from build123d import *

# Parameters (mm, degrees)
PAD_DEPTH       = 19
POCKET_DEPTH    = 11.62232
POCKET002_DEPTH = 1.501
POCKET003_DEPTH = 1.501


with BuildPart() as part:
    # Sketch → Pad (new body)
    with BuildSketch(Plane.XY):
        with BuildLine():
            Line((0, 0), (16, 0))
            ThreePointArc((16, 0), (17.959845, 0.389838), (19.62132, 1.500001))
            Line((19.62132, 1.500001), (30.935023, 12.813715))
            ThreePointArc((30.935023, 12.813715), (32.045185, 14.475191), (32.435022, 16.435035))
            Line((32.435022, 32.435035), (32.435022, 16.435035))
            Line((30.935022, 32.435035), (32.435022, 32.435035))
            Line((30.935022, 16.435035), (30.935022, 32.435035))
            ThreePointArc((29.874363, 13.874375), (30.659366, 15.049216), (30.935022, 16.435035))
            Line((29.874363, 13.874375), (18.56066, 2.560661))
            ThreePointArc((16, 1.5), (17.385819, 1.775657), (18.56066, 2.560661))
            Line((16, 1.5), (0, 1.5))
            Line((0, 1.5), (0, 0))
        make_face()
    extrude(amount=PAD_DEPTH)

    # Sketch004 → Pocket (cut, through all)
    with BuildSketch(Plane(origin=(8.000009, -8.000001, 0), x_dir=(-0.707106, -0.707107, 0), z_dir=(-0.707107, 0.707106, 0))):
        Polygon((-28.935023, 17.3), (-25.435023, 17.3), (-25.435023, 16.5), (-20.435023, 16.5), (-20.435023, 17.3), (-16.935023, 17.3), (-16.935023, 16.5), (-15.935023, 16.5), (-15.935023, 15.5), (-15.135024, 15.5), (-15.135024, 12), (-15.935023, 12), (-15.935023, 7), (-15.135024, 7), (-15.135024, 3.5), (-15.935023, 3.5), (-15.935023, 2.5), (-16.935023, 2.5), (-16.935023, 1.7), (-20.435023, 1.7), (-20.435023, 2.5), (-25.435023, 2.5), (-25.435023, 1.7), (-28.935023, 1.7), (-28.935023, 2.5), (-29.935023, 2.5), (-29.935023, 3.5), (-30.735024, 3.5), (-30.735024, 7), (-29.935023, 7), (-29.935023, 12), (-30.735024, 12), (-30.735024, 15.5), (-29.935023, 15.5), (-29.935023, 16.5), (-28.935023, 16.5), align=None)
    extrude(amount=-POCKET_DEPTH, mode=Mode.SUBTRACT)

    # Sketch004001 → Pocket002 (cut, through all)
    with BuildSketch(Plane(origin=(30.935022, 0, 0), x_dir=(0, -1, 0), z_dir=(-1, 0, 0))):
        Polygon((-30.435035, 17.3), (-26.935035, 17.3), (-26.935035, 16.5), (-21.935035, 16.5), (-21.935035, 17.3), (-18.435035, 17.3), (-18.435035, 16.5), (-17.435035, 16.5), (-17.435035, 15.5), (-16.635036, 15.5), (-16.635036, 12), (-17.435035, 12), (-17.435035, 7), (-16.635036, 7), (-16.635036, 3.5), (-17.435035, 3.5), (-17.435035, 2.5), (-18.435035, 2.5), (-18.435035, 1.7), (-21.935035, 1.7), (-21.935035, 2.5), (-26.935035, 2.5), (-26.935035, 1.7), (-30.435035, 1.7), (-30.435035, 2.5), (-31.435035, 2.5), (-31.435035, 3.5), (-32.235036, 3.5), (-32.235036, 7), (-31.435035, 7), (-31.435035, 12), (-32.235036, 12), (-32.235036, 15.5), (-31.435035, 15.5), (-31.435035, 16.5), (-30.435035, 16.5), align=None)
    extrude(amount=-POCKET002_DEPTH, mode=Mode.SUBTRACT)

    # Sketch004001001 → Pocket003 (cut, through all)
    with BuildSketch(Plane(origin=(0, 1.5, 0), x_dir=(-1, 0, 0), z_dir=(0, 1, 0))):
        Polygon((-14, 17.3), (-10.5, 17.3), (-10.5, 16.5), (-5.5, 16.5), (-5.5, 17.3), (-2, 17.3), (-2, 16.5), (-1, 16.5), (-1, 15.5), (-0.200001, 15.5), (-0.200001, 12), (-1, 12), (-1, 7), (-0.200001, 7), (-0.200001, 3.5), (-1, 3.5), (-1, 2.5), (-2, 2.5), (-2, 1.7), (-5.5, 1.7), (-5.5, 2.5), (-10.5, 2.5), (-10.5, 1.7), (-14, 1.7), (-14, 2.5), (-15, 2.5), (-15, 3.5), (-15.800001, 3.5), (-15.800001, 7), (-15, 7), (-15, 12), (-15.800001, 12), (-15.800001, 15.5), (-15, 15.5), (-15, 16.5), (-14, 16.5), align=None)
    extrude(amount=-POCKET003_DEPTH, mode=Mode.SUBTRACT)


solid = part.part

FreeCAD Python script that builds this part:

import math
import FreeCAD as App
import Part
import Sketcher

V = App.Vector


def add_polygon(sketch, points):
    """Adds a closed chain of lines whose ends are joined by coincident constraints."""
    first, n = sketch.GeometryCount, len(points)
    for a, b in zip(points, points[1:] + points[:1]):
        sketch.addGeometry(Part.LineSegment(App.Vector(*a, 0), App.Vector(*b, 0)), False)
    for i in range(n):
        sketch.addConstraint(Sketcher.Constraint("Coincident", first + i, 2, first + (i + 1) % n, 1))

doc = App.newDocument("Part")
params = doc.addObject("Spreadsheet::Sheet", "Params")
for row, (alias, value) in enumerate([
    ("sketch1_width", "16 mm"),
    ("sketch1_length", "16 mm"),
    ("sketch1_width2", "1.5 mm"),
    ("pad1_length", "19 mm"),
    ("sketch2_width", "1 mm"),
    ("sketch2_width2", "5 mm"),
    ("sketch2_width3", "3.5 mm"),
    ("sketch2_width4", "0.800001 mm"),
    ("sketch3_width", "1 mm"),
    ("sketch3_width2", "5 mm"),
    ("sketch3_width3", "3.5 mm"),
    ("sketch3_width4", "0.800001 mm"),
    ("sketch4_width", "1 mm"),
    ("sketch4_width2", "5 mm"),
    ("sketch4_width3", "3.5 mm"),
    ("sketch4_width4", "0.800001 mm"),
], start=1):
    params.set(f"A{row}", alias)
    params.set(f"B{row}", "=" + value)
    params.setAlias(f"B{row}", alias)

body = doc.addObject("PartDesign::Body", "Body")

# Sketch on XY plane
sketch1 = doc.addObject("Sketcher::SketchObject", "Sketch")
body.addObject(sketch1)
sketch1.AttachmentSupport = (doc.XY_Plane, [""])
sketch1.MapMode = "FlatFace"
sketch1.addGeometry([
    Part.LineSegment(V(0, 0, 0), V(16, 0, 0)),  # 0
    Part.ArcOfCircle(Part.Circle(V(16, 5.1, 0), V(0, 0, 1), 5.1), math.radians(-90), math.radians(-45)),  # 1
    Part.LineSegment(V(19.6, 1.5, 0), V(30.9, 12.8, 0)),  # 2
    Part.ArcOfCircle(Part.Circle(V(27.3, 16.4, 0), V(0, 0, 1), 5.1), math.radians(-45), math.radians(0)),  # 3
    Part.LineSegment(V(32.4, 16.4, 0), V(32.4, 32.4, 0)),  # 4
    Part.LineSegment(V(32.4, 32.4, 0), V(30.9, 32.4, 0)),  # 5
    Part.LineSegment(V(30.9, 32.4, 0), V(30.9, 16.4, 0)),  # 6
    Part.ArcOfCircle(Part.Circle(V(27.3, 16.4, 0), V(0, 0, 1), 3.6), math.radians(-45), math.radians(0)),  # 7
    Part.LineSegment(V(29.9, 13.9, 0), V(18.6, 2.6, 0)),  # 8
    Part.ArcOfCircle(Part.Circle(V(16, 5.1, 0), V(0, 0, 1), 3.6), math.radians(-90), math.radians(-45)),  # 9
    Part.LineSegment(V(16, 1.5, 0), V(0, 1.5, 0)),  # 10
    Part.LineSegment(V(0, 1.5, 0), V(0, 0, 0)),  # 11
], False)
sketch1.addConstraint([
    Sketcher.Constraint("Tangent", 0, 2, 1, 1),
    Sketcher.Constraint("Tangent", 1, 2, 2, 1),
    Sketcher.Constraint("Tangent", 2, 2, 3, 1),
    Sketcher.Constraint("Tangent", 3, 2, 4, 1),
    Sketcher.Constraint("Coincident", 4, 2, 5, 1),
    Sketcher.Constraint("Coincident", 5, 2, 6, 1),
    Sketcher.Constraint("Tangent", 6, 2, 7, 2),
    Sketcher.Constraint("Tangent", 7, 1, 8, 1),
    Sketcher.Constraint("Tangent", 8, 2, 9, 2),
    Sketcher.Constraint("Tangent", 9, 1, 10, 1),
    Sketcher.Constraint("Coincident", 10, 2, 11, 1),
    Sketcher.Constraint("Coincident", 11, 2, 0, 1),
    Sketcher.Constraint("Horizontal", 0),
    Sketcher.Constraint("Vertical", 4),
    Sketcher.Constraint("Horizontal", 5),
    Sketcher.Constraint("Vertical", 6),
    Sketcher.Constraint("Horizontal", 10),
    Sketcher.Constraint("Vertical", 11),
    Sketcher.Constraint("Coincident", 11, 2, -1, 1),
    Sketcher.Constraint("Coincident", 7, 3, 3, 3),
    Sketcher.Constraint("Coincident", 9, 3, 1, 3),
    Sketcher.Constraint("Equal", 7, 9),
    Sketcher.Constraint("Parallel", 2, 8),
    Sketcher.Constraint("Horizontal", 1, 2, 9, 1),
    Sketcher.Constraint("Vertical", 2, 2, 5, 2),
    Sketcher.Constraint("Equal", 10, 4),
    Sketcher.Constraint("DistanceX", 0, 1, 0, 2, 16.0),
    Sketcher.Constraint("Distance", 2, 16.0),
    Sketcher.Constraint("DistanceX", 5, 2, 5, 1, 1.5),
])
sketch1.setExpression("Constraints[26]", "Params.sketch1_width")
sketch1.setExpression("Constraints[27]", "Params.sketch1_length")
sketch1.setExpression("Constraints[28]", "Params.sketch1_width2")
pad1 = doc.addObject("PartDesign::Pad", "Pad")
body.addObject(pad1)
pad1.Profile = sketch1
pad1.setExpression("Length", "Params.pad1_length")

# Sketch on an angled plane
sketch2 = doc.addObject("Sketcher::SketchObject", "Sketch001")
body.addObject(sketch2)
sketch2.Placement = App.Placement(V(8.000009, -8.000001, 0), App.Rotation(V(-0.707106281, -0.707107281, 0), V(0, 0, 0.999999999), V(-0.707107281, 0.707106281, 0), "ZXY"))
add_polygon(sketch2, [(-25.4, 17.3), (-28.9, 17.3), (-28.9, 16.5), (-29.9, 16.5), (-29.9, 15.5), (-30.7, 15.5), (-30.7, 12), (-29.9, 12), (-29.9, 7), (-30.7, 7), (-30.7, 3.5), (-29.9, 3.5), (-29.9, 2.5), (-28.9, 2.5), (-28.9, 1.7), (-25.4, 1.7), (-25.4, 2.5), (-20.4, 2.5), (-20.4, 1.7), (-16.9, 1.7), (-16.9, 2.5), (-15.9, 2.5), (-15.9, 3.5), (-15.1, 3.5), (-15.1, 7), (-15.9, 7), (-15.9, 12), (-15.1, 12), (-15.1, 15.5), (-15.9, 15.5), (-15.9, 16.5), (-16.9, 16.5), (-16.9, 17.3), (-20.4, 17.3), (-20.4, 16.5), (-25.4, 16.5)])  # lines 0-35
sketch2.addConstraint([
    Sketcher.Constraint("Horizontal", 0),
    Sketcher.Constraint("Vertical", 1),
    Sketcher.Constraint("Horizontal", 2),
    Sketcher.Constraint("Vertical", 3),
    Sketcher.Constraint("Horizontal", 4),
    Sketcher.Constraint("Vertical", 5),
    Sketcher.Constraint("Horizontal", 6),
    Sketcher.Constraint("Vertical", 7),
    Sketcher.Constraint("Horizontal", 8),
    Sketcher.Constraint("Vertical", 9),
    Sketcher.Constraint("Horizontal", 10),
    Sketcher.Constraint("Vertical", 11),
    Sketcher.Constraint("Horizontal", 12),
    Sketcher.Constraint("Vertical", 13),
    Sketcher.Constraint("Horizontal", 14),
    Sketcher.Constraint("Vertical", 15),
    Sketcher.Constraint("Horizontal", 16),
    Sketcher.Constraint("Vertical", 17),
    Sketcher.Constraint("Horizontal", 18),
    Sketcher.Constraint("Vertical", 19),
    Sketcher.Constraint("Horizontal", 20),
    Sketcher.Constraint("Vertical", 21),
    Sketcher.Constraint("Horizontal", 22),
    Sketcher.Constraint("Vertical", 23),
    Sketcher.Constraint("Horizontal", 24),
    Sketcher.Constraint("Vertical", 25),
    Sketcher.Constraint("Horizontal", 26),
    Sketcher.Constraint("Vertical", 27),
    Sketcher.Constraint("Horizontal", 28),
    Sketcher.Constraint("Vertical", 29),
    Sketcher.Constraint("Horizontal", 30),
    Sketcher.Constraint("Vertical", 31),
    Sketcher.Constraint("Horizontal", 32),
    Sketcher.Constraint("Vertical", 33),
    Sketcher.Constraint("Horizontal", 34),
    Sketcher.Constraint("Vertical", 35),
    Sketcher.Constraint("Horizontal", 12, 2, 15, 2),
    Sketcher.Constraint("Horizontal", 14, 2, 17, 2),
    Sketcher.Constraint("Horizontal", 16, 2, 19, 2),
    Sketcher.Constraint("Horizontal", 10, 2, 21, 2),
    Sketcher.Constraint("Horizontal", 8, 2, 23, 2),
    Sketcher.Constraint("Horizontal", 6, 2, 25, 2),
    Sketcher.Constraint("Horizontal", 4, 2, 27, 2),
    Sketcher.Constraint("Horizontal", 2, 2, 29, 2),
    Sketcher.Constraint("Horizontal", 0, 2, 31, 2),
    Sketcher.Constraint("Horizontal", 30, 2, 33, 2),
    Sketcher.Constraint("Vertical", 3, 2, 6, 2),
    Sketcher.Constraint("Vertical", 5, 2, 8, 2),
    Sketcher.Constraint("Vertical", 7, 2, 10, 2),
    Sketcher.Constraint("Vertical", 1, 2, 12, 2),
    Sketcher.Constraint("Vertical", 21, 2, 24, 2),
    Sketcher.Constraint("Vertical", 23, 2, 26, 2),
    Sketcher.Constraint("Vertical", 25, 2, 28, 2),
    Sketcher.Constraint("Vertical", 19, 2, 30, 2),
    Sketcher.Constraint("Vertical", 17, 2, 32, 2),
    Sketcher.Constraint("Vertical", 15, 2, 34, 2),
    Sketcher.Constraint("Equal", 14, 18),
    Sketcher.Constraint("Equal", 12, 20),
    Sketcher.Constraint("Equal", 28, 1),
    Sketcher.Constraint("Equal", 30, 3),
    Sketcher.Constraint("Equal", 32, 5),
    Sketcher.Constraint("Equal", 34, 7),
    Sketcher.Constraint("Equal", 5, 9),
    Sketcher.Constraint("Equal", 3, 11),
    Sketcher.Constraint("Equal", 1, 13),
    Sketcher.Constraint("Equal", 10, 15),
    Sketcher.Constraint("DistanceX", 2, 2, 2, 1, 1.0),
    Sketcher.Constraint("DistanceX", 16, 1, 16, 2, 5.0),
    Sketcher.Constraint("DistanceX", 0, 2, 0, 1, 3.5),
    Sketcher.Constraint("DistanceX", 4, 2, 4, 1, 0.800001),
    Sketcher.Constraint("DistanceY", -1, 1, 5, 2, 12.0),
    Sketcher.Constraint("DistanceX", 0, 2, -1, 1, 28.935023),
])
sketch2.setExpression("Constraints[102]", "Params.sketch2_width")
sketch2.setExpression("Constraints[103]", "Params.sketch2_width2")
sketch2.setExpression("Constraints[104]", "Params.sketch2_width3")
sketch2.setExpression("Constraints[105]", "Params.sketch2_width4")
pocket1 = doc.addObject("PartDesign::Pocket", "Pocket")
body.addObject(pocket1)
pocket1.Profile = sketch2
pocket1.Type = "ThroughAll"

# Sketch on YZ plane
sketch3 = doc.addObject("Sketcher::SketchObject", "Sketch002")
body.addObject(sketch3)
sketch3.AttachmentSupport = (doc.YZ_Plane, [""])
sketch3.MapMode = "FlatFace"
sketch3.AttachmentOffset = App.Placement(V(0, 0, 30.935022), App.Rotation())
add_polygon(sketch3, [(26.9, 17.3), (30.4, 17.3), (30.4, 16.5), (31.4, 16.5), (31.4, 15.5), (32.2, 15.5), (32.2, 12), (31.4, 12), (31.4, 7), (32.2, 7), (32.2, 3.5), (31.4, 3.5), (31.4, 2.5), (30.4, 2.5), (30.4, 1.7), (26.9, 1.7), (26.9, 2.5), (21.9, 2.5), (21.9, 1.7), (18.4, 1.7), (18.4, 2.5), (17.4, 2.5), (17.4, 3.5), (16.6, 3.5), (16.6, 7), (17.4, 7), (17.4, 12), (16.6, 12), (16.6, 15.5), (17.4, 15.5), (17.4, 16.5), (18.4, 16.5), (18.4, 17.3), (21.9, 17.3), (21.9, 16.5), (26.9, 16.5)])  # lines 0-35
sketch3.addConstraint([
    Sketcher.Constraint("Horizontal", 0),
    Sketcher.Constraint("Vertical", 1),
    Sketcher.Constraint("Horizontal", 2),
    Sketcher.Constraint("Vertical", 3),
    Sketcher.Constraint("Horizontal", 4),
    Sketcher.Constraint("Vertical", 5),
    Sketcher.Constraint("Horizontal", 6),
    Sketcher.Constraint("Vertical", 7),
    Sketcher.Constraint("Horizontal", 8),
    Sketcher.Constraint("Vertical", 9),
    Sketcher.Constraint("Horizontal", 10),
    Sketcher.Constraint("Vertical", 11),
    Sketcher.Constraint("Horizontal", 12),
    Sketcher.Constraint("Vertical", 13),
    Sketcher.Constraint("Horizontal", 14),
    Sketcher.Constraint("Vertical", 15),
    Sketcher.Constraint("Horizontal", 16),
    Sketcher.Constraint("Vertical", 17),
    Sketcher.Constraint("Horizontal", 18),
    Sketcher.Constraint("Vertical", 19),
    Sketcher.Constraint("Horizontal", 20),
    Sketcher.Constraint("Vertical", 21),
    Sketcher.Constraint("Horizontal", 22),
    Sketcher.Constraint("Vertical", 23),
    Sketcher.Constraint("Horizontal", 24),
    Sketcher.Constraint("Vertical", 25),
    Sketcher.Constraint("Horizontal", 26),
    Sketcher.Constraint("Vertical", 27),
    Sketcher.Constraint("Horizontal", 28),
    Sketcher.Constraint("Vertical", 29),
    Sketcher.Constraint("Horizontal", 30),
    Sketcher.Constraint("Vertical", 31),
    Sketcher.Constraint("Horizontal", 32),
    Sketcher.Constraint("Vertical", 33),
    Sketcher.Constraint("Horizontal", 34),
    Sketcher.Constraint("Vertical", 35),
    Sketcher.Constraint("Horizontal", 12, 2, 15, 2),
    Sketcher.Constraint("Horizontal", 14, 2, 17, 2),
    Sketcher.Constraint("Horizontal", 16, 2, 19, 2),
    Sketcher.Constraint("Horizontal", 10, 2, 21, 2),
    Sketcher.Constraint("Horizontal", 8, 2, 23, 2),
    Sketcher.Constraint("Horizontal", 6, 2, 25, 2),
    Sketcher.Constraint("Horizontal", 4, 2, 27, 2),
    Sketcher.Constraint("Horizontal", 2, 2, 29, 2),
    Sketcher.Constraint("Horizontal", 0, 2, 31, 2),
    Sketcher.Constraint("Horizontal", 30, 2, 33, 2),
    Sketcher.Constraint("Vertical", 3, 2, 6, 2),
    Sketcher.Constraint("Vertical", 5, 2, 8, 2),
    Sketcher.Constraint("Vertical", 7, 2, 10, 2),
    Sketcher.Constraint("Vertical", 1, 2, 12, 2),
    Sketcher.Constraint("Vertical", 21, 2, 24, 2),
    Sketcher.Constraint("Vertical", 23, 2, 26, 2),
    Sketcher.Constraint("Vertical", 25, 2, 28, 2),
    Sketcher.Constraint("Vertical", 19, 2, 30, 2),
    Sketcher.Constraint("Vertical", 17, 2, 32, 2),
    Sketcher.Constraint("Vertical", 15, 2, 34, 2),
    Sketcher.Constraint("Equal", 14, 18),
    Sketcher.Constraint("Equal", 12, 20),
    Sketcher.Constraint("Equal", 28, 1),
    Sketcher.Constraint("Equal", 30, 3),
    Sketcher.Constraint("Equal", 32, 5),
    Sketcher.Constraint("Equal", 34, 7),
    Sketcher.Constraint("Equal", 5, 9),
    Sketcher.Constraint("Equal", 3, 11),
    Sketcher.Constraint("Equal", 1, 13),
    Sketcher.Constraint("Equal", 10, 15),
    Sketcher.Constraint("DistanceX", 2, 1, 2, 2, 1.0),
    Sketcher.Constraint("DistanceX", 16, 2, 16, 1, 5.0),
    Sketcher.Constraint("DistanceX", 0, 1, 0, 2, 3.5),
    Sketcher.Constraint("DistanceX", 4, 1, 4, 2, 0.800001),
    Sketcher.Constraint("DistanceY", -1, 1, 5, 2, 12.0),
    Sketcher.Constraint("DistanceX", -1, 1, 0, 2, 30.435035),
])
sketch3.setExpression("Constraints[102]", "Params.sketch3_width")
sketch3.setExpression("Constraints[103]", "Params.sketch3_width2")
sketch3.setExpression("Constraints[104]", "Params.sketch3_width3")
sketch3.setExpression("Constraints[105]", "Params.sketch3_width4")
pocket2 = doc.addObject("PartDesign::Pocket", "Pocket001")
body.addObject(pocket2)
pocket2.Profile = sketch3
pocket2.Type = "ThroughAll"
pocket2.Reversed = True

# Sketch on XZ plane
sketch4 = doc.addObject("Sketcher::SketchObject", "Sketch003")
body.addObject(sketch4)
sketch4.AttachmentSupport = (doc.XZ_Plane, [""])
sketch4.MapMode = "FlatFace"
sketch4.AttachmentOffset = App.Placement(V(0, 0, -1.5), App.Rotation())
add_polygon(sketch4, [(10.5, 17.3), (14, 17.3), (14, 16.5), (15, 16.5), (15, 15.5), (15.8, 15.5), (15.8, 12), (15, 12), (15, 7), (15.8, 7), (15.8, 3.5), (15, 3.5), (15, 2.5), (14, 2.5), (14, 1.7), (10.5, 1.7), (10.5, 2.5), (5.5, 2.5), (5.5, 1.7), (2, 1.7), (2, 2.5), (1, 2.5), (1, 3.5), (0.2, 3.5), (0.2, 7), (1, 7), (1, 12), (0.2, 12), (0.2, 15.5), (1, 15.5), (1, 16.5), (2, 16.5), (2, 17.3), (5.5, 17.3), (5.5, 16.5), (10.5, 16.5)])  # lines 0-35
sketch4.addConstraint([
    Sketcher.Constraint("Horizontal", 0),
    Sketcher.Constraint("Vertical", 1),
    Sketcher.Constraint("Horizontal", 2),
    Sketcher.Constraint("Vertical", 3),
    Sketcher.Constraint("Horizontal", 4),
    Sketcher.Constraint("Vertical", 5),
    Sketcher.Constraint("Horizontal", 6),
    Sketcher.Constraint("Vertical", 7),
    Sketcher.Constraint("Horizontal", 8),
    Sketcher.Constraint("Vertical", 9),
    Sketcher.Constraint("Horizontal", 10),
    Sketcher.Constraint("Vertical", 11),
    Sketcher.Constraint("Horizontal", 12),
    Sketcher.Constraint("Vertical", 13),
    Sketcher.Constraint("Horizontal", 14),
    Sketcher.Constraint("Vertical", 15),
    Sketcher.Constraint("Horizontal", 16),
    Sketcher.Constraint("Vertical", 17),
    Sketcher.Constraint("Horizontal", 18),
    Sketcher.Constraint("Vertical", 19),
    Sketcher.Constraint("Horizontal", 20),
    Sketcher.Constraint("Vertical", 21),
    Sketcher.Constraint("Horizontal", 22),
    Sketcher.Constraint("Vertical", 23),
    Sketcher.Constraint("Horizontal", 24),
    Sketcher.Constraint("Vertical", 25),
    Sketcher.Constraint("Horizontal", 26),
    Sketcher.Constraint("Vertical", 27),
    Sketcher.Constraint("Horizontal", 28),
    Sketcher.Constraint("Vertical", 29),
    Sketcher.Constraint("Horizontal", 30),
    Sketcher.Constraint("Vertical", 31),
    Sketcher.Constraint("Horizontal", 32),
    Sketcher.Constraint("Vertical", 33),
    Sketcher.Constraint("Horizontal", 34),
    Sketcher.Constraint("Vertical", 35),
    Sketcher.Constraint("Horizontal", 12, 2, 15, 2),
    Sketcher.Constraint("Horizontal", 14, 2, 17, 2),
    Sketcher.Constraint("Horizontal", 16, 2, 19, 2),
    Sketcher.Constraint("Horizontal", 10, 2, 21, 2),
    Sketcher.Constraint("Horizontal", 8, 2, 23, 2),
    Sketcher.Constraint("Horizontal", 6, 2, 25, 2),
    Sketcher.Constraint("Horizontal", 4, 2, 27, 2),
    Sketcher.Constraint("Horizontal", 2, 2, 29, 2),
    Sketcher.Constraint("Horizontal", 0, 2, 31, 2),
    Sketcher.Constraint("Horizontal", 30, 2, 33, 2),
    Sketcher.Constraint("Vertical", 3, 2, 6, 2),
    Sketcher.Constraint("Vertical", 5, 2, 8, 2),
    Sketcher.Constraint("Vertical", 7, 2, 10, 2),
    Sketcher.Constraint("Vertical", 1, 2, 12, 2),
    Sketcher.Constraint("Vertical", 21, 2, 24, 2),
    Sketcher.Constraint("Vertical", 23, 2, 26, 2),
    Sketcher.Constraint("Vertical", 25, 2, 28, 2),
    Sketcher.Constraint("Vertical", 19, 2, 30, 2),
    Sketcher.Constraint("Vertical", 17, 2, 32, 2),
    Sketcher.Constraint("Vertical", 15, 2, 34, 2),
    Sketcher.Constraint("Equal", 14, 18),
    Sketcher.Constraint("Equal", 12, 20),
    Sketcher.Constraint("Equal", 10, 22),
    Sketcher.Constraint("Equal", 28, 1),
    Sketcher.Constraint("Equal", 30, 3),
    Sketcher.Constraint("Equal", 32, 5),
    Sketcher.Constraint("Equal", 34, 7),
    Sketcher.Constraint("Equal", 5, 9),
    Sketcher.Constraint("Equal", 3, 11),
    Sketcher.Constraint("Equal", 1, 13),
    Sketcher.Constraint("DistanceX", 2, 1, 2, 2, 1.0),
    Sketcher.Constraint("DistanceX", 16, 2, 16, 1, 5.0),
    Sketcher.Constraint("DistanceX", 0, 1, 0, 2, 3.5),
    Sketcher.Constraint("DistanceX", 4, 1, 4, 2, 0.800001),
    Sketcher.Constraint("DistanceX", -1, 1, 0, 2, 14.0),
    Sketcher.Constraint("DistanceY", -1, 1, 5, 2, 12.0),
])
sketch4.setExpression("Constraints[102]", "Params.sketch4_width")
sketch4.setExpression("Constraints[103]", "Params.sketch4_width2")
sketch4.setExpression("Constraints[104]", "Params.sketch4_width3")
sketch4.setExpression("Constraints[105]", "Params.sketch4_width4")
pocket3 = doc.addObject("PartDesign::Pocket", "Pocket002")
body.addObject(pocket3)
pocket3.Profile = sketch4
pocket3.Type = "ThroughAll"
pocket3.Reversed = True

doc.recompute()
